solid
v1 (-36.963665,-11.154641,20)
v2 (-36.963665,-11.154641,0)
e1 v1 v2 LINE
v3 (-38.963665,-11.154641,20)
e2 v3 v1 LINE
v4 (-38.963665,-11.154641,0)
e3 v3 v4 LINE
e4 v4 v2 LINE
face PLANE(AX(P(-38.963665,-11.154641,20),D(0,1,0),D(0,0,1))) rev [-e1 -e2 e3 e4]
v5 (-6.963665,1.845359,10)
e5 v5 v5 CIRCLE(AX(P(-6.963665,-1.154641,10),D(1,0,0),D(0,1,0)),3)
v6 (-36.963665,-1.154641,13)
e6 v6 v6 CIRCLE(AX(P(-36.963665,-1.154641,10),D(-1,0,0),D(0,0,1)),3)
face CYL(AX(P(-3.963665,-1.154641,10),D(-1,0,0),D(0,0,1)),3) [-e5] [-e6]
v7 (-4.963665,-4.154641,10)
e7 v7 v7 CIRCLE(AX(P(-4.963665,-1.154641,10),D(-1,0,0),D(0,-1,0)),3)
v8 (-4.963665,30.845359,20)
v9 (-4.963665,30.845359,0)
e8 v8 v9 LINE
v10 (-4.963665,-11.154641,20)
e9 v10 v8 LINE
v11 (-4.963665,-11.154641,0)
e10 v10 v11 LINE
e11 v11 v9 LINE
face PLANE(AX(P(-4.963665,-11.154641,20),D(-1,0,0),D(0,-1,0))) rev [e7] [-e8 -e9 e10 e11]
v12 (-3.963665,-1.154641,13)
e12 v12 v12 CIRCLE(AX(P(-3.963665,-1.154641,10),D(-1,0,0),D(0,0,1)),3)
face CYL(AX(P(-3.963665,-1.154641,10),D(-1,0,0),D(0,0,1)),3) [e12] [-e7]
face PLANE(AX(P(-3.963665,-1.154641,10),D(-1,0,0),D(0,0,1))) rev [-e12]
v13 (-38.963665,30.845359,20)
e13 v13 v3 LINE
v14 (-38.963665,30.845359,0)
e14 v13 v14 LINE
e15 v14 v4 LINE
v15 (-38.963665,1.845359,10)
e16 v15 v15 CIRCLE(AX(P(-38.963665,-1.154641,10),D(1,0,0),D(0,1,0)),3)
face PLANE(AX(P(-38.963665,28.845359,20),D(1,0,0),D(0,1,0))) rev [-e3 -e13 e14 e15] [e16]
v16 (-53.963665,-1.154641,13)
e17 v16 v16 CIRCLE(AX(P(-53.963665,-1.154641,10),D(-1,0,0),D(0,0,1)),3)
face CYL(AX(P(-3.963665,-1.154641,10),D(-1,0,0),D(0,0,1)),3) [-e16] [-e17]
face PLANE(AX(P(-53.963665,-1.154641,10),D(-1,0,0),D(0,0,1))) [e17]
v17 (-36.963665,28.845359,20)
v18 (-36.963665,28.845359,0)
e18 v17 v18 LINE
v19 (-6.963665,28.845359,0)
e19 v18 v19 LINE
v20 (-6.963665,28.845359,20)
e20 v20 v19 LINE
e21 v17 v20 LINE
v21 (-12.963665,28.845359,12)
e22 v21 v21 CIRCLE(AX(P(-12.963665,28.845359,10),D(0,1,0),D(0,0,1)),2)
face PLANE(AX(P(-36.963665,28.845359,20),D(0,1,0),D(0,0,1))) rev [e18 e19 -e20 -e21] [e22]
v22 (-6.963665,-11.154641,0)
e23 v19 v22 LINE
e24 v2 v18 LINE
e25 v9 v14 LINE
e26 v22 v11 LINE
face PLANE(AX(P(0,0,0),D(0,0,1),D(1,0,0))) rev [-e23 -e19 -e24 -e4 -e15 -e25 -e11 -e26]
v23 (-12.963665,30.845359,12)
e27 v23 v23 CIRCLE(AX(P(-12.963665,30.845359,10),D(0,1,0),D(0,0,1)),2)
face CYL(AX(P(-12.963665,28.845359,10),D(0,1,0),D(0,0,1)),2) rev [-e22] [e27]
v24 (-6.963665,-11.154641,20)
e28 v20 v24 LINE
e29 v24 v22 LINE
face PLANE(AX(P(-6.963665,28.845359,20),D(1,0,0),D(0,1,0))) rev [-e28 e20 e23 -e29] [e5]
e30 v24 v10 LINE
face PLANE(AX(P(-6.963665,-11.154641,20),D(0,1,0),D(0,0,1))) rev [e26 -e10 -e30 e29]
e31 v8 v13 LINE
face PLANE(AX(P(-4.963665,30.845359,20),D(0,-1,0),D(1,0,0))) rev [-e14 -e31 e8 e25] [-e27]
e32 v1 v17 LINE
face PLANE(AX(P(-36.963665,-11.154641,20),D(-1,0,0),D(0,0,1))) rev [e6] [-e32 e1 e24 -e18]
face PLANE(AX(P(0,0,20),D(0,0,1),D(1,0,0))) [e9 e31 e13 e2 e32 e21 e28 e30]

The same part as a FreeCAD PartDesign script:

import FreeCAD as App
import Part
import Sketcher

V = App.Vector
Q = App.Units.Quantity

doc = App.newDocument("Part")
params = doc.addObject("Spreadsheet::Sheet", "Params")
for row, (alias, value) in enumerate([
    ("sketch1_width", "2 mm"),
    ("sketch1_width2", "30 mm"),
    ("sketch1_height", "40 mm"),
    ("sketch1_height2", "42 mm"),
    ("pad1_length", "20 mm"),
    ("sketch2_diameter", "6 mm"),
    ("pad2_length", "15 mm"),
    ("pad2_length2", "35 mm"),
    ("sketch3_diameter", "4 mm"),
    ("pocket1_length", "2 mm"),
], start=1):
    params.set(f"A{row}", alias)
    params.set(f"B{row}", "=" + value)
    params.setAlias(f"B{row}", alias)

body = doc.addObject("PartDesign::Body", "Body")

sketch1 = body.newObject("Sketcher::SketchObject", "Sketch")
sketch1.AttachmentSupport = (doc.getObject("XY_Plane"), [""])
sketch1.MapMode = "FlatFace"
sketch1.addGeometry(Part.LineSegment(V(-39, -11.2, 0), V(-37, -11.2, 0)), False)
sketch1.addGeometry(Part.LineSegment(V(-37, -11.2, 0), V(-37, 28.8, 0)), False)
sketch1.addGeometry(Part.LineSegment(V(-37, 28.8, 0), V(-7, 28.8, 0)), False)
sketch1.addGeometry(Part.LineSegment(V(-7, 28.8, 0), V(-7, -11.2, 0)), False)
sketch1.addGeometry(Part.LineSegment(V(-7, -11.2, 0), V(-5, -11.2, 0)), False)
sketch1.addGeometry(Part.LineSegment(V(-5, -11.2, 0), V(-5, 30.8, 0)), False)
sketch1.addGeometry(Part.LineSegment(V(-5, 30.8, 0), V(-39, 30.8, 0)), False)
sketch1.addGeometry(Part.LineSegment(V(-39, 30.8, 0), V(-39, -11.2, 0)), False)
sketch1.addConstraint(Sketcher.Constraint("Coincident", 0, 2, 1, 1))
sketch1.addConstraint(Sketcher.Constraint("Coincident", 1, 2, 2, 1))
sketch1.addConstraint(Sketcher.Constraint("Coincident", 2, 2, 3, 1))
sketch1.addConstraint(Sketcher.Constraint("Coincident", 3, 2, 4, 1))
sketch1.addConstraint(Sketcher.Constraint("Coincident", 4, 2, 5, 1))
sketch1.addConstraint(Sketcher.Constraint("Coincident", 5, 2, 6, 1))
sketch1.addConstraint(Sketcher.Constraint("Coincident", 6, 2, 7, 1))
sketch1.addConstraint(Sketcher.Constraint("Coincident", 7, 2, 0, 1))
sketch1.addConstraint(Sketcher.Constraint("Horizontal", 0))
sketch1.addConstraint(Sketcher.Constraint("Vertical", 1))
sketch1.addConstraint(Sketcher.Constraint("Horizontal", 2))
sketch1.addConstraint(Sketcher.Constraint("Vertical", 3))
sketch1.addConstraint(Sketcher.Constraint("Horizontal", 4))
sketch1.addConstraint(Sketcher.Constraint("Vertical", 5))
sketch1.addConstraint(Sketcher.Constraint("Horizontal", 6))
sketch1.addConstraint(Sketcher.Constraint("Vertical", 7))
sketch1.addConstraint(Sketcher.Constraint("Horizontal", 0, 2, 3, 2))
sketch1.addConstraint(Sketcher.Constraint("Equal", 0, 4))
sketch1.addConstraint(Sketcher.Constraint("DistanceX", 0, 1, 0, 2, Q("2 mm")))
sketch1.addConstraint(Sketcher.Constraint("DistanceX", 2, 1, 2, 2, Q("30 mm")))
sketch1.addConstraint(Sketcher.Constraint("DistanceY", 1, 1, 1, 2, Q("40 mm")))
sketch1.addConstraint(Sketcher.Constraint("DistanceY", 5, 1, 5, 2, Q("42 mm")))
sketch1.addConstraint(Sketcher.Constraint("DistanceY", 0, 2, -1, 1, Q("11.154641 mm")))
sketch1.addConstraint(Sketcher.Constraint("DistanceX", 0, 2, -1, 1, Q("36.963665 mm")))
sketch1.setExpression("Constraints[18]", "Params.sketch1_width")
sketch1.setExpression("Constraints[19]", "Params.sketch1_width2")
sketch1.setExpression("Constraints[20]", "Params.sketch1_height")
sketch1.setExpression("Constraints[21]", "Params.sketch1_height2")
pad1 = body.newObject("PartDesign::Pad", "Pad")
pad1.Profile = sketch1
pad1.setExpression("Length", "Params.pad1_length")

sketch2 = body.newObject("Sketcher::SketchObject", "Sketch001")
sketch2.AttachmentSupport = (doc.getObject("YZ_Plane"), [""])
sketch2.MapMode = "FlatFace"
sketch2.AttachmentOffset = App.Placement(V(0, 0, -38.963665), App.Rotation())
sketch2.addGeometry(Part.Circle(V(-1.2, 10, 0), V(0, 0, 1), 3), False)
sketch2.addConstraint(Sketcher.Constraint("Diameter", 0, Q("6 mm")))
sketch2.addConstraint(Sketcher.Constraint("DistanceY", -1, 1, 0, 3, Q("10 mm")))
sketch2.addConstraint(Sketcher.Constraint("DistanceX", 0, 3, -1, 1, Q("1.154641 mm")))
sketch2.setExpression("Constraints[0]", "Params.sketch2_diameter")
pad2 = body.newObject("PartDesign::Pad", "Pad001")
pad2.Profile = sketch2
pad2.Type = "TwoLengths"
pad2.setExpression("Length", "Params.pad2_length")
pad2.setExpression("Length2", "Params.pad2_length2")
pad2.Reversed = True

sketch3 = body.newObject("Sketcher::SketchObject", "Sketch002")
sketch3.AttachmentSupport = (doc.getObject("XZ_Plane"), [""])
sketch3.MapMode = "FlatFace"
sketch3.AttachmentOffset = App.Placement(V(0, 0, -30.845359), App.Rotation())
sketch3.addGeometry(Part.Circle(V(-13, 10, 0), V(0, 0, 1), 2), False)
sketch3.addConstraint(Sketcher.Constraint("Diameter", 0, Q("4 mm")))
sketch3.addConstraint(Sketcher.Constraint("DistanceY", -1, 1, 0, 3, Q("10 mm")))
sketch3.addConstraint(Sketcher.Constraint("DistanceX", 0, 3, -1, 1, Q("12.963665 mm")))
sketch3.setExpression("Constraints[0]", "Params.sketch3_diameter")
pocket1 = body.newObject("PartDesign::Pocket", "Pocket")
pocket1.Profile = sketch3
pocket1.setExpression("Length", "Params.pocket1_length")
pocket1.Reversed = True

doc.recompute()
